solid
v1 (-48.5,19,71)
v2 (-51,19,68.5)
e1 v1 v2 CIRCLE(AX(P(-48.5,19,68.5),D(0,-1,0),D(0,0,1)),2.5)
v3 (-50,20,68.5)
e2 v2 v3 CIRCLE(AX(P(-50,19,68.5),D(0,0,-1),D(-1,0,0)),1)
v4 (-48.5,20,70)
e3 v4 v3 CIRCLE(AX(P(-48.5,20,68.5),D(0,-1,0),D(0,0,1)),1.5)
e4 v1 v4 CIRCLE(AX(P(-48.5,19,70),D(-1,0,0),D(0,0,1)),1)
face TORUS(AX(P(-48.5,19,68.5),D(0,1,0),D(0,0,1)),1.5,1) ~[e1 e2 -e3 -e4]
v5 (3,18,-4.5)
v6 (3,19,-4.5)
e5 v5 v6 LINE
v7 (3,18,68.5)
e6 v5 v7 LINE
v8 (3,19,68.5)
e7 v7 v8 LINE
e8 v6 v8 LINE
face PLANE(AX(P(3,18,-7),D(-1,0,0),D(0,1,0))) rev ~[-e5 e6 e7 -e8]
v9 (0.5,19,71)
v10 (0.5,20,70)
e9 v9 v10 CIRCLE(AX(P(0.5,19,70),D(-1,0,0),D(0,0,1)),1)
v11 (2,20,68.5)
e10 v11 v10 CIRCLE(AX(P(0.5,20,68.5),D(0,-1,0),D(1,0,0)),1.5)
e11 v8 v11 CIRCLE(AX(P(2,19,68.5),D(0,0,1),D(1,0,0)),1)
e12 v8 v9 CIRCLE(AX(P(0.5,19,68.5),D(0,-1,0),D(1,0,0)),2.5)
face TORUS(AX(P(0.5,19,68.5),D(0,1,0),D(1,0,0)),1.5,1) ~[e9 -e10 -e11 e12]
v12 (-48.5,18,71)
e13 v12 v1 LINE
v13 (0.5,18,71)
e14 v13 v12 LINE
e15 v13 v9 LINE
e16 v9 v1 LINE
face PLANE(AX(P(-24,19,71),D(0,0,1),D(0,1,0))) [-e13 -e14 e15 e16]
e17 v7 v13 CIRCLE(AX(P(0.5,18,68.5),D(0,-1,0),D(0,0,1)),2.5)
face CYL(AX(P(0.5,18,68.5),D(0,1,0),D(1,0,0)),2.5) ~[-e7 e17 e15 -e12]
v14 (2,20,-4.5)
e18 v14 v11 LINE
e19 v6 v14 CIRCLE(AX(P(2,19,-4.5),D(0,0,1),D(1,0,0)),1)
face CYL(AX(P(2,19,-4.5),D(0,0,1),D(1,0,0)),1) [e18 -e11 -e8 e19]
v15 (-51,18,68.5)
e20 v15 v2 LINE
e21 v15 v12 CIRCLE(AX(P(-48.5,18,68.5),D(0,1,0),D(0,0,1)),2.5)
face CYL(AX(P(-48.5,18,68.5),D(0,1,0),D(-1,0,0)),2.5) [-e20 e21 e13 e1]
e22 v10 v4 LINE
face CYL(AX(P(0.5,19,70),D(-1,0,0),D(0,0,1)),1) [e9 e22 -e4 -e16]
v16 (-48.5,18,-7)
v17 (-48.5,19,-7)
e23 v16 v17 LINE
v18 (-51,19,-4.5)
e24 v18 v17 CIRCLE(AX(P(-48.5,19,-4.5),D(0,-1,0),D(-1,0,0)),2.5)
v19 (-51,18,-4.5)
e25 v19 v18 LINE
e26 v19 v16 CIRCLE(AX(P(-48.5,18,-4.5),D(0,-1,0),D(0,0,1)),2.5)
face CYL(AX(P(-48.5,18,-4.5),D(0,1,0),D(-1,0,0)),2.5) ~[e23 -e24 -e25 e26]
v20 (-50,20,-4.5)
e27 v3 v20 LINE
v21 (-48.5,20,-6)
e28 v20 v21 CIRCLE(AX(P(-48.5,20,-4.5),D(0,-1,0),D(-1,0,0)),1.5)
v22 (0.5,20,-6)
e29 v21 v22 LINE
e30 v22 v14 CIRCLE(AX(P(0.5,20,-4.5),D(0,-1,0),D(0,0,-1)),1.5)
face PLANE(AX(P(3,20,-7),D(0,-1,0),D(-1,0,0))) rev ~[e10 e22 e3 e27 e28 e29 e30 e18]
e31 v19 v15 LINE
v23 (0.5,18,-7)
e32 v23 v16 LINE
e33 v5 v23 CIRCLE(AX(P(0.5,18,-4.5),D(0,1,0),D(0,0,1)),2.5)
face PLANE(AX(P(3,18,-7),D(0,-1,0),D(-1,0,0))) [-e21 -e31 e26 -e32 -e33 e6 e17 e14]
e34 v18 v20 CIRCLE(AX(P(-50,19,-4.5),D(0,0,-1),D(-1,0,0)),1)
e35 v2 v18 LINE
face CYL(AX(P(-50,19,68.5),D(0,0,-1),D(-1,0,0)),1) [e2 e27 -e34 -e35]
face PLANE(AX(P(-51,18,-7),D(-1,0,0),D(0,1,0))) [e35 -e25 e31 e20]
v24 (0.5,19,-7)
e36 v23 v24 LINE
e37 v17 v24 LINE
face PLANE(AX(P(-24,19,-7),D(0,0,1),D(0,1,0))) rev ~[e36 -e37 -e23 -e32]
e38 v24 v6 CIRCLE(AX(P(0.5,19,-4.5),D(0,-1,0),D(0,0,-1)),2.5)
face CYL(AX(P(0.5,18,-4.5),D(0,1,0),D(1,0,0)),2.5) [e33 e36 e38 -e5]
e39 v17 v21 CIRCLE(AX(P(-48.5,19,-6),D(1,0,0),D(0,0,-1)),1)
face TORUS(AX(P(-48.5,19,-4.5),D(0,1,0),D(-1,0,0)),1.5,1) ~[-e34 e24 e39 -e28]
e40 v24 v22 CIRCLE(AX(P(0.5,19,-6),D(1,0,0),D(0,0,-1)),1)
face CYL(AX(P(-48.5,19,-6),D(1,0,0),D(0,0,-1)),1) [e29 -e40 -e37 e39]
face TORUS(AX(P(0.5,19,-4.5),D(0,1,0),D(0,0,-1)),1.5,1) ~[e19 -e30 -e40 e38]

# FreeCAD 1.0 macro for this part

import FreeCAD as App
import Part
import Sketcher

V = App.Vector


def edges_at(feature, points):
    """Names of the edges that pass closest to the given points."""
    edges = feature.Shape.Edges
    near = lambda p: min(range(len(edges)), key=lambda i: edges[i].distToShape(Part.Vertex(*p))[0])
    return sorted({f"Edge{near(p) + 1}" for p in points})

doc = App.newDocument("Part")
body = doc.addObject("PartDesign::Body", "Body")

sketch1 = doc.addObject("Sketcher::SketchObject", "Sketch")
body.addObject(sketch1)
sketch1.AttachmentSupport = (doc.XY_Plane, [""])
sketch1.MapMode = "FlatFace"
sketch1.AttachmentOffset = App.Placement(V(0, 0, -7), App.Rotation())
sketch1.addGeometry(Part.LineSegment(V(-51, 18, 0), V(3, 18, 0)), False)
sketch1.addGeometry(Part.LineSegment(V(3, 18, 0), V(3, 20, 0)), False)
sketch1.addGeometry(Part.LineSegment(V(3, 20, 0), V(-51, 20, 0)), False)
sketch1.addGeometry(Part.LineSegment(V(-51, 20, 0), V(-51, 18, 0)), False)
sketch1.addConstraint(Sketcher.Constraint("Coincident", 0, 2, 1, 1))
sketch1.addConstraint(Sketcher.Constraint("Coincident", 1, 2, 2, 1))
sketch1.addConstraint(Sketcher.Constraint("Coincident", 2, 2, 3, 1))
sketch1.addConstraint(Sketcher.Constraint("Coincident", 3, 2, 0, 1))
sketch1.addConstraint(Sketcher.Constraint("Horizontal", 0))
sketch1.addConstraint(Sketcher.Constraint("Vertical", 1))
sketch1.addConstraint(Sketcher.Constraint("Horizontal", 2))
sketch1.addConstraint(Sketcher.Constraint("Vertical", 3))
sketch1.addConstraint(Sketcher.Constraint("DistanceX", 0, 1, 0, 2, 54.0))
sketch1.addConstraint(Sketcher.Constraint("DistanceY", 1, 1, 1, 2, 2.0))
sketch1.addConstraint(Sketcher.Constraint("DistanceX", -1, 1, 0, 2, 3.0))
sketch1.addConstraint(Sketcher.Constraint("DistanceY", -1, 1, 0, 2, 18.0))
pad1 = doc.addObject("PartDesign::Pad", "Pad")
body.addObject(pad1)
pad1.Profile = sketch1
pad1.Length = 78
doc.recompute()

fillet = doc.addObject("PartDesign::Fillet", "Fillet")
body.addObject(fillet)
fillet.Base = (pad1, edges_at(pad1, [
    (3, 19, -7),
    (3, 19, 71),
    (-51, 19, -7),
    (-51, 19, 71),
]))
fillet.Radius = 2.5
doc.recompute()

fillet2 = doc.addObject("PartDesign::Fillet", "Fillet001")
body.addObject(fillet2)
fillet2.Base = (fillet, edges_at(fillet, [
    (3, 20, 32),
    (-24, 20, -7),
    (-24, 20, 71),
    (-51, 20, 32),
]))
fillet2.Radius = 1

doc.recompute()
